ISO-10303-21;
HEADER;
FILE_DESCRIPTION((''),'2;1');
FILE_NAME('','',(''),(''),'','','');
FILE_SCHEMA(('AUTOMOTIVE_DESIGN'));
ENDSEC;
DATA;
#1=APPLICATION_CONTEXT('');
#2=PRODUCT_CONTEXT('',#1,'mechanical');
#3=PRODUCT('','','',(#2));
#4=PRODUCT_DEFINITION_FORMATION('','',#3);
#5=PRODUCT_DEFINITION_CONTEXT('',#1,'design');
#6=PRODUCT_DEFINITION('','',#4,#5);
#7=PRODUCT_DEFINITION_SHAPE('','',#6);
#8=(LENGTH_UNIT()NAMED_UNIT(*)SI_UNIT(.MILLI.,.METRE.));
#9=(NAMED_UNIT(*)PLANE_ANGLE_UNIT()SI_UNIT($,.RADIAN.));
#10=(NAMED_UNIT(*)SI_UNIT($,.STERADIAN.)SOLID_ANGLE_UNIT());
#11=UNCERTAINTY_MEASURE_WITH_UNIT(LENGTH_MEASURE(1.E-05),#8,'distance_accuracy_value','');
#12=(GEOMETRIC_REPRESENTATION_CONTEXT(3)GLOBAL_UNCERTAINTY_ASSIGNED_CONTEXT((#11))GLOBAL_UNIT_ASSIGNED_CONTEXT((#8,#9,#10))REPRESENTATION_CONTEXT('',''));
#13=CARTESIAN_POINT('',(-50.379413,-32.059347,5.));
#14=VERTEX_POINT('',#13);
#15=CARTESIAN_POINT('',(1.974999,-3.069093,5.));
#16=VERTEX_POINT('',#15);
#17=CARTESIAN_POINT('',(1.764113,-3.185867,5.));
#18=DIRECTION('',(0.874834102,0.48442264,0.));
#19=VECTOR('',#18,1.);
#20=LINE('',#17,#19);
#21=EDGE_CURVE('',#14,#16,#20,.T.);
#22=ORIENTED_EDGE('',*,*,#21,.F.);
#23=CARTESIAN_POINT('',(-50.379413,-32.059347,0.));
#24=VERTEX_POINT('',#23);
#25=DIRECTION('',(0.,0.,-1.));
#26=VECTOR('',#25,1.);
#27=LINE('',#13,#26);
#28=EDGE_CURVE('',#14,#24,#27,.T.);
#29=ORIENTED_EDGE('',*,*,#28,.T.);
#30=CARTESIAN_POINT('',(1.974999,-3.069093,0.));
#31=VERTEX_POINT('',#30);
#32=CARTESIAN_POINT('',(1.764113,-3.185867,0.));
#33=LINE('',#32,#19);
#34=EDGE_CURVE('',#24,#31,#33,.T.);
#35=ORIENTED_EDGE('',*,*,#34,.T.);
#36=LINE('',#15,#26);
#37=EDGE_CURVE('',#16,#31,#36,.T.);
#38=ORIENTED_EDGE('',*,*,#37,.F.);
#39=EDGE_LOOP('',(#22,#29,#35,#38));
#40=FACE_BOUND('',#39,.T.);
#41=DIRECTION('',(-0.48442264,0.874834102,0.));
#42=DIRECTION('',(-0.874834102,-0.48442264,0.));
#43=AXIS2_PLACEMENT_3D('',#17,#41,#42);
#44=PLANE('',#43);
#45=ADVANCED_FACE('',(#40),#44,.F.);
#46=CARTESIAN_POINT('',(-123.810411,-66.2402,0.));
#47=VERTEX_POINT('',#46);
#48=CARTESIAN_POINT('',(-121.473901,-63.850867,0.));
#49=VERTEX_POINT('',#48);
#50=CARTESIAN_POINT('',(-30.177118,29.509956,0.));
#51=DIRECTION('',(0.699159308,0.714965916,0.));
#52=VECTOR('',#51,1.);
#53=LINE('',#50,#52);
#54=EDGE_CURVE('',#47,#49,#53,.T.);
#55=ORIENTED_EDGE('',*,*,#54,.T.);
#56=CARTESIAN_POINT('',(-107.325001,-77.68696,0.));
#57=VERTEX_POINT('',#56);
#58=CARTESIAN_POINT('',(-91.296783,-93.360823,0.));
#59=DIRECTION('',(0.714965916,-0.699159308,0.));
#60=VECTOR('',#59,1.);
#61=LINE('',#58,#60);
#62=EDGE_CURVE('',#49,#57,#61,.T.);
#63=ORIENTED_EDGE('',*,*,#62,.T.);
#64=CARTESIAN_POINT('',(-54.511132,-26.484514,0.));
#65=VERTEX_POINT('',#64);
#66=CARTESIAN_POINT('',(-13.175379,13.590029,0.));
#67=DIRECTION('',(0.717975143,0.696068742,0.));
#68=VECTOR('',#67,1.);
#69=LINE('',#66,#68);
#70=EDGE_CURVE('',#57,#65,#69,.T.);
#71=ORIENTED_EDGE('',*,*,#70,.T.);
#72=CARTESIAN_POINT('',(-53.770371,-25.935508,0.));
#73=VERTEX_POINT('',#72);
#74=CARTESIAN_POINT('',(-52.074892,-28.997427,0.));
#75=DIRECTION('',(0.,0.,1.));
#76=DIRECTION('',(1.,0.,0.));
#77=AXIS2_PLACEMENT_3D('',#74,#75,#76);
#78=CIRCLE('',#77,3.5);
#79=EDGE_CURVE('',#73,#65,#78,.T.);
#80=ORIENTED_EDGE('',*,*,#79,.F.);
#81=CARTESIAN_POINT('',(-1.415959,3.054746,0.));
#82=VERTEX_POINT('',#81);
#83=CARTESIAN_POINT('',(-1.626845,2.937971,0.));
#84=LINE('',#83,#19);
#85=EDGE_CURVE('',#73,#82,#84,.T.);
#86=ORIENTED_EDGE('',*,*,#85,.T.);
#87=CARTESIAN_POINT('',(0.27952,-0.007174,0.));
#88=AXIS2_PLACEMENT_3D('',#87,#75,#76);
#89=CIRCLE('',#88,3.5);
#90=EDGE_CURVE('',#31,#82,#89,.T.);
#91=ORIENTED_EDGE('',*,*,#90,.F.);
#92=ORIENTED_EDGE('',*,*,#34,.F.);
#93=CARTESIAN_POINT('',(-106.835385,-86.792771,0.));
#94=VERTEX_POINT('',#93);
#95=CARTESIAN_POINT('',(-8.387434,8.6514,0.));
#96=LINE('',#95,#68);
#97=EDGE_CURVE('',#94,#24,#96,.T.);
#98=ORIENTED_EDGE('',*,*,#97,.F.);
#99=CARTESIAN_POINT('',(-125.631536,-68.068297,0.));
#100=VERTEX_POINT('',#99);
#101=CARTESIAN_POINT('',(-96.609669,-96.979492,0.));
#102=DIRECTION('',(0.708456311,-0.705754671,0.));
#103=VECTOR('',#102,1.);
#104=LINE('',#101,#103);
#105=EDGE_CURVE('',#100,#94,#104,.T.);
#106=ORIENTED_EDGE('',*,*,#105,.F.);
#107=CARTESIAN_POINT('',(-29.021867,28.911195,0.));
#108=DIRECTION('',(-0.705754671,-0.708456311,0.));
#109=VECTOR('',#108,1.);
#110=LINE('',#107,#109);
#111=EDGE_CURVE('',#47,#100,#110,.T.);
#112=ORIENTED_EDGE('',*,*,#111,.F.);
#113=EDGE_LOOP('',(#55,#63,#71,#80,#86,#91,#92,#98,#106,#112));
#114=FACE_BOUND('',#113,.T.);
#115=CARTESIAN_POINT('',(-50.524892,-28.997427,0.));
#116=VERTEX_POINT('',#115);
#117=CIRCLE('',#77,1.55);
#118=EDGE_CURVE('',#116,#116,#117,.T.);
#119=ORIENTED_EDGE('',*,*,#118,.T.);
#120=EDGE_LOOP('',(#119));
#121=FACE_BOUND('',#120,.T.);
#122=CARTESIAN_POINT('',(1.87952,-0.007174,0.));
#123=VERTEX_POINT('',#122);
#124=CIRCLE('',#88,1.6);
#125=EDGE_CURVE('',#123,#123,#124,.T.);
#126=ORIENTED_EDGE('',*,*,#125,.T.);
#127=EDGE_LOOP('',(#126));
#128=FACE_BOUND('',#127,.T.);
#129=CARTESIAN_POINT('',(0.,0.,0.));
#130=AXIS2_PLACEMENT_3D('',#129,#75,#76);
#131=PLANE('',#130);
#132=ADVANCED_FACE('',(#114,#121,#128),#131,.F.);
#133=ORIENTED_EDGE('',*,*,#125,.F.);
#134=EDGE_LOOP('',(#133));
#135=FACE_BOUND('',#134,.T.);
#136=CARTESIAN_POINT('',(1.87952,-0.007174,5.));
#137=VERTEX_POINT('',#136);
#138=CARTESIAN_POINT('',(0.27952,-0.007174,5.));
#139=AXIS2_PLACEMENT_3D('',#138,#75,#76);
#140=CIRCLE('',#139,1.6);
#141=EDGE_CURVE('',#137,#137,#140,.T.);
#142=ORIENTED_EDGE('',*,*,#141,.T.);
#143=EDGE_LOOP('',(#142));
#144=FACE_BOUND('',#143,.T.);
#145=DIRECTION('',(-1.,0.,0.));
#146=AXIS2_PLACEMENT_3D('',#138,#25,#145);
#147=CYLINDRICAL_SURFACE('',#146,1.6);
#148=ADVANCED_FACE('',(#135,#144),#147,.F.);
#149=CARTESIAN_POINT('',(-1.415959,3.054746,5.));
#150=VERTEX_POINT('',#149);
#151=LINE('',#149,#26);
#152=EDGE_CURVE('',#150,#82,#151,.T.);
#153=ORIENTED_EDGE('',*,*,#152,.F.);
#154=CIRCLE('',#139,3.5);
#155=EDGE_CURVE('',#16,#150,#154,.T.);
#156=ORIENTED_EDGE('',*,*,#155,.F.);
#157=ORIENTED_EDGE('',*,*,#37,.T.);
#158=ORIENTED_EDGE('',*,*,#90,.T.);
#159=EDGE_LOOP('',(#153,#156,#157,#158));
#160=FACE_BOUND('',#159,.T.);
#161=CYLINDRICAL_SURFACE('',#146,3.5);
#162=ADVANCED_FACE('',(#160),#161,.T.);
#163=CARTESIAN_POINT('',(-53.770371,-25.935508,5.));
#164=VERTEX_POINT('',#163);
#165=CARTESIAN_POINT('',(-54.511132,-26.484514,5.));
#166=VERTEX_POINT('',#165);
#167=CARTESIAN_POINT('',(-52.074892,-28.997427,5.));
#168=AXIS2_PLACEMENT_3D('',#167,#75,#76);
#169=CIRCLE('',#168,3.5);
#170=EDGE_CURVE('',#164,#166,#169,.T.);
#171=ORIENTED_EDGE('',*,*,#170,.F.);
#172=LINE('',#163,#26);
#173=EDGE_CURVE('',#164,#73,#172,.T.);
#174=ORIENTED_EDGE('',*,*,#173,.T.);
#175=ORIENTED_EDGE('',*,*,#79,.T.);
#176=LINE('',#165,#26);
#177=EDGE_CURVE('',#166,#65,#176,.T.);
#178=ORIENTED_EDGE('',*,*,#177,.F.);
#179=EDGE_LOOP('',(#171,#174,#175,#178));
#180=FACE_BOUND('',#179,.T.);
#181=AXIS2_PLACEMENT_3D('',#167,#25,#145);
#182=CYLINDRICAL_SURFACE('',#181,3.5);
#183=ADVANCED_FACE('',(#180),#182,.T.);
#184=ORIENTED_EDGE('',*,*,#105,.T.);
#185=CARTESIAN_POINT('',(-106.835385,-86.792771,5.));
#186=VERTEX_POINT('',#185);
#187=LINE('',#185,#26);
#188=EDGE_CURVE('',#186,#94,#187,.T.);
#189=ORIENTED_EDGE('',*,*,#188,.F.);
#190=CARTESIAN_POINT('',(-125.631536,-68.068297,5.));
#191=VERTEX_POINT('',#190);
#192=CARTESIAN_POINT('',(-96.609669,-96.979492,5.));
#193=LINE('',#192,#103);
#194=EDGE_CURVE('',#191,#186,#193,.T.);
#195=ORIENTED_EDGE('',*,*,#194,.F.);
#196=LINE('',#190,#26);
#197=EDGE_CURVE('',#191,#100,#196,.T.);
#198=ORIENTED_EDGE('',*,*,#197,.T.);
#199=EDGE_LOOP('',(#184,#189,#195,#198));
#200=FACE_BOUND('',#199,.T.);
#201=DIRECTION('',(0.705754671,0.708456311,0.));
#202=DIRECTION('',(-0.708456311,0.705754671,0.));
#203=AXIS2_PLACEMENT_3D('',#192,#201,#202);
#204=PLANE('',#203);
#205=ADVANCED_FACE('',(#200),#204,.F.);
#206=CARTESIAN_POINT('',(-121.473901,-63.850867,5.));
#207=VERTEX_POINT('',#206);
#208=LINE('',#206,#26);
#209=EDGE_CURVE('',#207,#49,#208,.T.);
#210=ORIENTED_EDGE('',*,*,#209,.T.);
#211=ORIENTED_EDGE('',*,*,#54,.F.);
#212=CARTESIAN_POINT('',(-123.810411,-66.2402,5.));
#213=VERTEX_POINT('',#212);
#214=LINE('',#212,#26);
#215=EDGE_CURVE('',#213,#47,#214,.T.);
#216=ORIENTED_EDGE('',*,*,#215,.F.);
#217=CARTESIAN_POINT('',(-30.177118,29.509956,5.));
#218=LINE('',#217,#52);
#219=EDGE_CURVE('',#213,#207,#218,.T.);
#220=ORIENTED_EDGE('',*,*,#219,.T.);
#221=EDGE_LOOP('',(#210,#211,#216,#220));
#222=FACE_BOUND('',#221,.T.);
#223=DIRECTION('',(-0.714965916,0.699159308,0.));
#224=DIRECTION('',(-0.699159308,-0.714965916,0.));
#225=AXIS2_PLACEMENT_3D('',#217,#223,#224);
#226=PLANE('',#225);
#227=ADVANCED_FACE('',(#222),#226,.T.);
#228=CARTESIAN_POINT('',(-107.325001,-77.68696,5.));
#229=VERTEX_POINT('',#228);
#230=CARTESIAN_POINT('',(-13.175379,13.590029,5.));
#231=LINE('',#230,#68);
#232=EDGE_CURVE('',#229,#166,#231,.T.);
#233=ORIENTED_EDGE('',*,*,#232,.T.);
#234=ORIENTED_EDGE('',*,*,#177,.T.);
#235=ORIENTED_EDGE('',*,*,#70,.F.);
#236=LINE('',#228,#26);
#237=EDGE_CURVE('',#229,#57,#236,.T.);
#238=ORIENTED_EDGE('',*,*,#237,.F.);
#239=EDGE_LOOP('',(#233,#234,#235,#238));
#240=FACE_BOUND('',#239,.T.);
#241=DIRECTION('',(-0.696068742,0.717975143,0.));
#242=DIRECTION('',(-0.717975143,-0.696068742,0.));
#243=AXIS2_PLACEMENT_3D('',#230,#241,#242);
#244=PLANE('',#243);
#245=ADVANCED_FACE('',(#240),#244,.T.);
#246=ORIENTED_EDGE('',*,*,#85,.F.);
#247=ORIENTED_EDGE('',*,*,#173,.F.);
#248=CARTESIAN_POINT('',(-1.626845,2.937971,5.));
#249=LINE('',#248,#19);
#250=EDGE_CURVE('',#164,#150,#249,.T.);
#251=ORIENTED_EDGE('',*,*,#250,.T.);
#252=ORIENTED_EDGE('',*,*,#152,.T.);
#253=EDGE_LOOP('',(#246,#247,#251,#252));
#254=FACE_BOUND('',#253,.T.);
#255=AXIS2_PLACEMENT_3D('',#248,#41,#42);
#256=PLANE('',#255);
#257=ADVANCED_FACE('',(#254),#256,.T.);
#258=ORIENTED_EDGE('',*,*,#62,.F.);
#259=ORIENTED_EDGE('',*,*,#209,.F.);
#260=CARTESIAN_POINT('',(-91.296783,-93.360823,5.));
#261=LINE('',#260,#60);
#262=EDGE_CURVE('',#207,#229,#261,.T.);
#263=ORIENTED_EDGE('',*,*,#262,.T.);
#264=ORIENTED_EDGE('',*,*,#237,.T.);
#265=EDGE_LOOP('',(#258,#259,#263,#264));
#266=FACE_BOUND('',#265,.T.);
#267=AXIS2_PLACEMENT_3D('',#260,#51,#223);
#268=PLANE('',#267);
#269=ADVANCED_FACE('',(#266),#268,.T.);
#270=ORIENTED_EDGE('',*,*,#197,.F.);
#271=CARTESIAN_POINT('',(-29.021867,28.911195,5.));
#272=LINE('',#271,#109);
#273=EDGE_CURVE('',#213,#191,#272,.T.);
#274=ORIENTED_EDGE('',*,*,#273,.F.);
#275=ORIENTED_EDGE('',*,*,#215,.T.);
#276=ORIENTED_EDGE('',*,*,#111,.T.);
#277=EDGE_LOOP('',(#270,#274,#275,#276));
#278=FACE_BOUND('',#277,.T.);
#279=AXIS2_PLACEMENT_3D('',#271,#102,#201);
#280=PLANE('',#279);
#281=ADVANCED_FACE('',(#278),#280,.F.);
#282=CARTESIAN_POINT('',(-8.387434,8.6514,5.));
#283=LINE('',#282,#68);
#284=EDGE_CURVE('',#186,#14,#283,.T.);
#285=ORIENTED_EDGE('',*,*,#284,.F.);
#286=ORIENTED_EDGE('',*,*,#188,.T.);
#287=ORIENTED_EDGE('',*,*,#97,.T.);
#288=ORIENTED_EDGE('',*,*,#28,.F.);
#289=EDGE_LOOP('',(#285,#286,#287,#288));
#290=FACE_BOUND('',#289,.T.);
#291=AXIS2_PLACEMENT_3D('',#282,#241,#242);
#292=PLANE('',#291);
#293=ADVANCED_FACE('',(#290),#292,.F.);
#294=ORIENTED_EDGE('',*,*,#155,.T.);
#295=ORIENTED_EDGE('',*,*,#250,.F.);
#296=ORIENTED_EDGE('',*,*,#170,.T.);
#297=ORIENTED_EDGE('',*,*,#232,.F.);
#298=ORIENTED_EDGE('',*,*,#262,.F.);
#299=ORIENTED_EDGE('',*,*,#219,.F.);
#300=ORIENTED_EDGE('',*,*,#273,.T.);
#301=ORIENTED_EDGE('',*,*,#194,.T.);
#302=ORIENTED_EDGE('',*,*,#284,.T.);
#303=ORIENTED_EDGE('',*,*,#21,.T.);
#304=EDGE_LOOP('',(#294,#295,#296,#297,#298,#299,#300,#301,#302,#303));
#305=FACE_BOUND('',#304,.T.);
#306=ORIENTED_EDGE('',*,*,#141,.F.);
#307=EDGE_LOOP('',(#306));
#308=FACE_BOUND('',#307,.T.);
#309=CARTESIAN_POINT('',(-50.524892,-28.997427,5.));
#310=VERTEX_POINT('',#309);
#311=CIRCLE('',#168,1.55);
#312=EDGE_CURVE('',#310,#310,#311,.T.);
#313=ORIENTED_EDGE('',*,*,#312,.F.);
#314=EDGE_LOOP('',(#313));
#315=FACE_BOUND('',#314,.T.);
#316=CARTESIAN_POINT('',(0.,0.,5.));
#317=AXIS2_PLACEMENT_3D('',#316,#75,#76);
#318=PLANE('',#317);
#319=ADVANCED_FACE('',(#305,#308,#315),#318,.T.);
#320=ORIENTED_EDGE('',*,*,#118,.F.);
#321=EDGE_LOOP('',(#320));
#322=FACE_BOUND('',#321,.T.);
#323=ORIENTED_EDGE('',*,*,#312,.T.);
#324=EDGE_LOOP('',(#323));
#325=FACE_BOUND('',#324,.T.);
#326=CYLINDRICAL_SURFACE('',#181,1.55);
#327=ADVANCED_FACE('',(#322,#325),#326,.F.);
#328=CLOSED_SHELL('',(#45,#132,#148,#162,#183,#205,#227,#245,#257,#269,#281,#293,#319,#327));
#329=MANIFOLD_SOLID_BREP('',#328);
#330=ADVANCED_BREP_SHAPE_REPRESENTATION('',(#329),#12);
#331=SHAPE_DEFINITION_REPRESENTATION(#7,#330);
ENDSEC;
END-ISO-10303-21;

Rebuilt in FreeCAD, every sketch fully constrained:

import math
import FreeCAD as App
import Part
import Sketcher

V = App.Vector

doc = App.newDocument("Part")
body = doc.addObject("PartDesign::Body", "Body")

# Sketch on XY plane
sketch1 = body.newObject("Sketcher::SketchObject", "Sketch")
sketch1.AttachmentSupport = (doc.getObject("XY_Plane"), [""])
sketch1.MapMode = "FlatFace"
sketch1.addGeometry([
    Part.LineSegment(V(-54.5, -26.5, 0), V(-107.3, -77.7, 0)),  # 0
    Part.LineSegment(V(-107.3, -77.7, 0), V(-121.5, -63.9, 0)),  # 1
    Part.LineSegment(V(-121.5, -63.9, 0), V(-123.8, -66.2, 0)),  # 2
    Part.LineSegment(V(-123.8, -66.2, 0), V(-125.6, -68.1, 0)),  # 3
    Part.LineSegment(V(-125.6, -68.1, 0), V(-106.8, -86.8, 0)),  # 4
    Part.LineSegment(V(-106.8, -86.8, 0), V(-50.4, -32.1, 0)),  # 5
    Part.LineSegment(V(-50.4, -32.1, 0), V(2, -3.1, 0)),  # 6
    Part.ArcOfCircle(Part.Circle(V(0.3, 0, 0), V(0, 0, 1), 3.5), math.radians(-61), math.radians(119)),  # 7
    Part.LineSegment(V(-1.4, 3.1, 0), V(-53.8, -25.9, 0)),  # 8
    Part.ArcOfCircle(Part.Circle(V(-52.1, -29, 0), V(0, 0, 1), 3.5), math.radians(118.97), math.radians(134.11)),  # 9
    Part.Circle(V(-52.1, -29, 0), V(0, 0, 1), 1.6),  # 10
    Part.Circle(V(0.3, 0, 0), V(0, 0, 1), 1.6),  # 11
], False)
sketch1.addConstraint([
    Sketcher.Constraint("Coincident", 0, 2, 1, 1),
    Sketcher.Constraint("Coincident", 1, 2, 2, 1),
    Sketcher.Constraint("Coincident", 2, 2, 3, 1),
    Sketcher.Constraint("Coincident", 3, 2, 4, 1),
    Sketcher.Constraint("Coincident", 4, 2, 5, 1),
    Sketcher.Constraint("Coincident", 5, 2, 6, 1),
    Sketcher.Constraint("Tangent", 6, 2, 7, 1),
    Sketcher.Constraint("Tangent", 7, 2, 8, 1),
    Sketcher.Constraint("Tangent", 8, 2, 9, 1),
    Sketcher.Constraint("Tangent", 9, 2, 0, 1),
    Sketcher.Constraint("Coincident", 10, 3, 9, 3),
    Sketcher.Constraint("Coincident", 11, 3, 7, 3),
    Sketcher.Constraint("Equal", 7, 9),
    Sketcher.Constraint("Perpendicular", 1, 2),
    Sketcher.Constraint("Perpendicular", 3, 4),
    Sketcher.Constraint("Parallel", 0, 5),
    Sketcher.Constraint("Parallel", 6, 8),
    Sketcher.Constraint("Equal", 6, 8),
    Sketcher.Constraint("Diameter", 10, 3.1),
    Sketcher.Constraint("Diameter", 11, 3.2),
    Sketcher.Constraint("Radius", 7, 3.5),
    Sketcher.Constraint("DistanceX", 0, 2, -1, 1, 107.325001),
    Sketcher.Constraint("DistanceX", -1, 1, 6, 2, 1.974999),
    Sketcher.Constraint("DistanceX", 1, 2, -1, 1, 121.473901),
    Sketcher.Constraint("DistanceY", 2, 2, -1, 1, 66.2402),
    Sketcher.Constraint("Distance", 5, 78.63221),
    Sketcher.Constraint("Distance", 6, 59.84496),
    Sketcher.Constraint("DistanceX", -1, 1, 7, 3, 0.27952),
    Sketcher.Constraint("DistanceY", 0, 2, -1, 1, 77.68696),
    Sketcher.Constraint("DistanceX", 2, 2, -1, 1, 123.810411),
    Sketcher.Constraint("DistanceY", 4, 2, -1, 1, 86.792771),
    Sketcher.Constraint("DistanceY", 3, 2, 1, 2, 4.21743),
])
pad1 = body.newObject("PartDesign::Pad", "Pad")
pad1.Profile = sketch1
pad1.Length = 5

doc.recompute()
